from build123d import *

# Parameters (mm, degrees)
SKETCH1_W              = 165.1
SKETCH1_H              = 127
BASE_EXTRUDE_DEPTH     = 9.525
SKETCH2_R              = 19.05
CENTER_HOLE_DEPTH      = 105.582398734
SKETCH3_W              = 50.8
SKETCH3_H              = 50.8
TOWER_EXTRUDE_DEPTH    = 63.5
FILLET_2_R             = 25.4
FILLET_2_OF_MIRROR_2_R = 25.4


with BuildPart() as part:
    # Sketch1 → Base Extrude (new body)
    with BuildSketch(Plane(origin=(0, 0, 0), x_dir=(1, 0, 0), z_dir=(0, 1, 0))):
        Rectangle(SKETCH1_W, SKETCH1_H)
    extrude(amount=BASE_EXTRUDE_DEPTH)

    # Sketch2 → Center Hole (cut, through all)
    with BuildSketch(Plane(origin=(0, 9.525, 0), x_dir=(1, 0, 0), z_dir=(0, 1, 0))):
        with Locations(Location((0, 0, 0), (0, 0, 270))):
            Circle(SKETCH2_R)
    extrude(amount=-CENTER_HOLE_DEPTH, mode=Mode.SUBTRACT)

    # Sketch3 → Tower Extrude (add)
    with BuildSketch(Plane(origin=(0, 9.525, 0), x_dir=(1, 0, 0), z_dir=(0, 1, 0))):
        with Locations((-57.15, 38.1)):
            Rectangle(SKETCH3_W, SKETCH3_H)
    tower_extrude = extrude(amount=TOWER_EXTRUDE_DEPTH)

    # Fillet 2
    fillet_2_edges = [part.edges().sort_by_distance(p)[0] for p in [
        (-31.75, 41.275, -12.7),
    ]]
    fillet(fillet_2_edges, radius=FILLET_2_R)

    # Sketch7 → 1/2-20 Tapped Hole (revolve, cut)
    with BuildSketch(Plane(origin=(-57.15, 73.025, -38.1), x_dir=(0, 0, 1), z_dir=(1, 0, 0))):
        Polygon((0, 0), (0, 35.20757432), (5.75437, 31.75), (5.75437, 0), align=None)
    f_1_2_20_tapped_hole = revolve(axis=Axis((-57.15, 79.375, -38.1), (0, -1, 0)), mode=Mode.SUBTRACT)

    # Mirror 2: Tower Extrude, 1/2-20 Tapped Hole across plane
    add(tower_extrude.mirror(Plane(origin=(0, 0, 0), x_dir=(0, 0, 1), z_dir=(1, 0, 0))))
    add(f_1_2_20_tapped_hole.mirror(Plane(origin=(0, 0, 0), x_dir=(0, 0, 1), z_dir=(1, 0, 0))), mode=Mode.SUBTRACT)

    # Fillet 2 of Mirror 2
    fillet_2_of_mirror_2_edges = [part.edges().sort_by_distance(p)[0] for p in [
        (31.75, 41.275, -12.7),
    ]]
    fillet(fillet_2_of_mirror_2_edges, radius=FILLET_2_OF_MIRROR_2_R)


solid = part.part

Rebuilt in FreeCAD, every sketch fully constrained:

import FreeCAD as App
import Part
import Sketcher

V = App.Vector
Q = App.Units.Quantity


def edges_at(feature, points):
    """Names of the edges that pass closest to the given points."""
    edges = feature.Shape.Edges
    near = lambda p: min(range(len(edges)), key=lambda i: edges[i].distToShape(Part.Vertex(*p))[0])
    return sorted({f"Edge{near(p) + 1}" for p in points})

doc = App.newDocument("Part")
body = doc.addObject("PartDesign::Body", "Body")

sketch1 = body.newObject("Sketcher::SketchObject", "Sketch")
sketch1.AttachmentSupport = (doc.getObject("XZ_Plane"), [""])
sketch1.MapMode = "FlatFace"
sketch1.addGeometry([
    Part.LineSegment(V(-83, -64, 0), V(-83, 64, 0)),
    Part.LineSegment(V(-83, 64, 0), V(83, 64, 0)),
    Part.LineSegment(V(83, 64, 0), V(83, -64, 0)),
    Part.LineSegment(V(83, -64, 0), V(-83, -64, 0)),
], False)
sketch1.addConstraint([
    Sketcher.Constraint("Coincident", 0, 2, 1, 1),
    Sketcher.Constraint("Coincident", 1, 2, 2, 1),
    Sketcher.Constraint("Coincident", 2, 2, 3, 1),
    Sketcher.Constraint("Coincident", 3, 2, 0, 1),
    Sketcher.Constraint("Vertical", 0),
    Sketcher.Constraint("Horizontal", 1),
    Sketcher.Constraint("Vertical", 2),
    Sketcher.Constraint("Horizontal", 3),
    Sketcher.Constraint("Symmetric", 0, 2, 2, 2, -1, 1),
    Sketcher.Constraint("DistanceY", 0, 1, 0, 2, Q("5 in")),
    Sketcher.Constraint("DistanceX", 1, 1, 1, 2, Q("6.5 in")),
])
pad1 = body.newObject("PartDesign::Pad", "Pad")
pad1.Profile = sketch1
pad1.Length = Q("0.375 in")
pad1.Reversed = True

sketch2 = body.newObject("Sketcher::SketchObject", "Sketch001")
sketch2.AttachmentSupport = (doc.getObject("XZ_Plane"), [""])
sketch2.MapMode = "FlatFace"
sketch2.AttachmentOffset = App.Placement(V(0, 0, -0.375 * 25.4), App.Rotation())
sketch2.addGeometry(Part.Circle(V(0, 0, 0), V(0, 0, 1), 19), False)
sketch2.addConstraint([
    Sketcher.Constraint("Coincident", 0, 3, -1, 1),
    Sketcher.Constraint("Diameter", 0, Q("1.5 in")),
])
pocket1 = body.newObject("PartDesign::Pocket", "Pocket")
pocket1.Profile = sketch2
pocket1.Type = "ThroughAll"
pocket1.Reversed = True

sketch3 = body.newObject("Sketcher::SketchObject", "Sketch002")
sketch3.AttachmentSupport = (doc.getObject("XZ_Plane"), [""])
sketch3.MapMode = "FlatFace"
sketch3.AttachmentOffset = App.Placement(V(0, 0, -0.375 * 25.4), App.Rotation())
sketch3.addGeometry([
    Part.LineSegment(V(-83, -64, 0), V(-83, -13, 0)),
    Part.LineSegment(V(-83, -13, 0), V(-32, -13, 0)),
    Part.LineSegment(V(-32, -13, 0), V(-32, -64, 0)),
    Part.LineSegment(V(-32, -64, 0), V(-83, -64, 0)),
], False)
sketch3.addConstraint([
    Sketcher.Constraint("Coincident", 0, 2, 1, 1),
    Sketcher.Constraint("Coincident", 1, 2, 2, 1),
    Sketcher.Constraint("Coincident", 2, 2, 3, 1),
    Sketcher.Constraint("Coincident", 3, 2, 0, 1),
    Sketcher.Constraint("Vertical", 0),
    Sketcher.Constraint("Horizontal", 1),
    Sketcher.Constraint("Vertical", 2),
    Sketcher.Constraint("Horizontal", 3),
    Sketcher.Constraint("Equal", 3, 0),
    Sketcher.Constraint("DistanceX", 1, 1, 1, 2, Q("2 in")),
    Sketcher.Constraint("DistanceY", 0, 2, -1, 1, Q("0.5 in")),
    Sketcher.Constraint("DistanceX", 0, 2, -1, 1, Q("3.25 in")),
])
pad2 = body.newObject("PartDesign::Pad", "Pad001")
pad2.Profile = sketch3
pad2.Length = Q("2.5 in")
pad2.Reversed = True
doc.recompute()

fillet = body.newObject("PartDesign::Fillet", "Fillet")
fillet.Base = (pad2, edges_at(pad2, [(-31.75, 41.275, -12.7)]))
fillet.Radius = Q("1 in")

sketch4 = body.newObject("Sketcher::SketchObject", "Sketch003")
sketch4.AttachmentSupport = (doc.getObject("YZ_Plane"), [""])
sketch4.MapMode = "FlatFace"
sketch4.AttachmentOffset = App.Placement(V(0, 0, -2.25 * 25.4), App.Rotation())
sketch4.addGeometry([
    Part.LineSegment(V(38, -38, 0), V(73, -38, 0)),
    Part.LineSegment(V(73, -38, 0), V(73, -32, 0)),
    Part.LineSegment(V(73, -32, 0), V(41, -32, 0)),
    Part.LineSegment(V(41, -32, 0), V(38, -38, 0)),
], False)
sketch4.addGeometry(Part.LineSegment(V(73, -38, 0), V(38, -38, 0)), True)
sketch4.addConstraint([
    Sketcher.Constraint("Coincident", 0, 2, 1, 1),
    Sketcher.Constraint("Coincident", 1, 2, 2, 1),
    Sketcher.Constraint("Coincident", 2, 2, 3, 1),
    Sketcher.Constraint("Coincident", 3, 2, 0, 1),
    Sketcher.Constraint("Horizontal", 0),
    Sketcher.Constraint("Vertical", 1),
    Sketcher.Constraint("Horizontal", 2),
    Sketcher.Constraint("Horizontal", 4),
    Sketcher.Constraint("Coincident", 4, 1, 0, 2),
    Sketcher.Constraint("Equal", 0, 4),
    Sketcher.Constraint("Angle", 3, Q("-121 deg")),
    Sketcher.Constraint("DistanceX", 2, 2, 2, 1, Q("1.25 in")),
    Sketcher.Constraint("DistanceY", 0, 2, -1, 1, Q("1.5 in")),
    Sketcher.Constraint("DistanceX", -1, 1, 0, 2, Q("2.875 in")),
    Sketcher.Constraint("DistanceY", 1, 1, 1, 2, 5.75437),
])
groove = body.newObject("PartDesign::Groove", "Groove")
groove.Profile = sketch4
groove.ReferenceAxis = (sketch4, ["Axis0"])
groove.Angle = 360
doc.recompute()

mirrored = body.newObject("PartDesign::Mirrored", "Mirrored")
mirrored.Originals = [pad2, groove]
mirrored.MirrorPlane = (doc.getObject("YZ_Plane"), [""])
body.Tip = mirrored
doc.recompute()

fillet2 = body.newObject("PartDesign::Fillet", "Fillet001")
fillet2.Base = (mirrored, edges_at(mirrored, [(31.75, 41.275, -12.7)]))
fillet2.Radius = Q("1 in")

doc.recompute()
